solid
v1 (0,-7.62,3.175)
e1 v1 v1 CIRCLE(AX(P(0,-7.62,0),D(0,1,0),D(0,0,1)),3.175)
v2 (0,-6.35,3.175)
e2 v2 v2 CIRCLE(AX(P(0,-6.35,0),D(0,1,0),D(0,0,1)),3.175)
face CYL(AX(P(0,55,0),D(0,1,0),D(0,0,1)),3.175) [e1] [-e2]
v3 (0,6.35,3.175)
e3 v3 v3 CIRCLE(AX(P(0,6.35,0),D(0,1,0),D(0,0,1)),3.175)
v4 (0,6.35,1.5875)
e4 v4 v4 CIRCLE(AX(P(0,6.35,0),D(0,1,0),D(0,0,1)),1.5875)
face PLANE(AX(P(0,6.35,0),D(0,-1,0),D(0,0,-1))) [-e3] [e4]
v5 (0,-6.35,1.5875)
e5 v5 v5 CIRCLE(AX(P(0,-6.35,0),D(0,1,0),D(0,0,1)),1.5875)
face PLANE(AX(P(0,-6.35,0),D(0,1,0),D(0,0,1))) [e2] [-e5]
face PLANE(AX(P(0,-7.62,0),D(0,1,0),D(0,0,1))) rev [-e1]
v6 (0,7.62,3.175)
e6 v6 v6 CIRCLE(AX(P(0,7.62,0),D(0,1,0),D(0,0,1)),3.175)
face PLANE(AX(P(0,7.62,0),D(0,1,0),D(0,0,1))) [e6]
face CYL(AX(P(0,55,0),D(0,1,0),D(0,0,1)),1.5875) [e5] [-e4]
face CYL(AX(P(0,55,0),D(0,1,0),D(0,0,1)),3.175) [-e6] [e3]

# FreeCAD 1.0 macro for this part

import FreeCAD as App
import Part
import Sketcher
Q = App.Units.Quantity


def add_polygon(sketch, points):
    """Adds a closed chain of lines whose ends are joined by coincident constraints."""
    first, n = sketch.GeometryCount, len(points)
    for a, b in zip(points, points[1:] + points[:1]):
        sketch.addGeometry(Part.LineSegment(App.Vector(*a, 0), App.Vector(*b, 0)), False)
    for i in range(n):
        sketch.addConstraint(Sketcher.Constraint("Coincident", first + i, 2, first + (i + 1) % n, 1))

doc = App.newDocument("Part")
body = doc.addObject("PartDesign::Body", "Body")

# Sketch on XY plane
sketch1 = doc.addObject("Sketcher::SketchObject", "Sketch")
body.addObject(sketch1)
sketch1.AttachmentSupport = (doc.XY_Plane, [""])
sketch1.MapMode = "FlatFace"
add_polygon(sketch1, [(3.2, 7.6), (0, 7.6), (0, -7.6), (3.2, -7.6), (3.2, -6.3), (1.6, -6.3), (1.6, 6.3), (3.2, 6.3)])  # lines 0-7
sketch1.addConstraint(Sketcher.Constraint("Horizontal", 0))
sketch1.addConstraint(Sketcher.Constraint("Vertical", 1))
sketch1.addConstraint(Sketcher.Constraint("Horizontal", 2))
sketch1.addConstraint(Sketcher.Constraint("Vertical", 3))
sketch1.addConstraint(Sketcher.Constraint("Horizontal", 4))
sketch1.addConstraint(Sketcher.Constraint("Vertical", 5))
sketch1.addConstraint(Sketcher.Constraint("Horizontal", 6))
sketch1.addConstraint(Sketcher.Constraint("Vertical", 7))
sketch1.addConstraint(Sketcher.Constraint("Symmetric", 0, 2, 1, 2, -1, 1))
sketch1.addConstraint(Sketcher.Constraint("Symmetric", 3, 2, 6, 2, -1))
sketch1.addConstraint(Sketcher.Constraint("DistanceY", 1, 2, 1, 1, Q("0.6 in")))
sketch1.addConstraint(Sketcher.Constraint("DistanceY", 5, 1, 5, 2, Q("0.5 in")))
sketch1.addConstraint(Sketcher.Constraint("DistanceX", 0, 2, 0, 1, Q("0.125 in")))
sketch1.addConstraint(Sketcher.Constraint("DistanceX", 4, 2, 4, 1, Q("0.0625 in")))
revolution = doc.addObject("PartDesign::Revolution", "Revolution")
body.addObject(revolution)
revolution.Profile = sketch1
revolution.ReferenceAxis = (sketch1, ["V_Axis"])
revolution.Angle = 360

doc.recompute()
